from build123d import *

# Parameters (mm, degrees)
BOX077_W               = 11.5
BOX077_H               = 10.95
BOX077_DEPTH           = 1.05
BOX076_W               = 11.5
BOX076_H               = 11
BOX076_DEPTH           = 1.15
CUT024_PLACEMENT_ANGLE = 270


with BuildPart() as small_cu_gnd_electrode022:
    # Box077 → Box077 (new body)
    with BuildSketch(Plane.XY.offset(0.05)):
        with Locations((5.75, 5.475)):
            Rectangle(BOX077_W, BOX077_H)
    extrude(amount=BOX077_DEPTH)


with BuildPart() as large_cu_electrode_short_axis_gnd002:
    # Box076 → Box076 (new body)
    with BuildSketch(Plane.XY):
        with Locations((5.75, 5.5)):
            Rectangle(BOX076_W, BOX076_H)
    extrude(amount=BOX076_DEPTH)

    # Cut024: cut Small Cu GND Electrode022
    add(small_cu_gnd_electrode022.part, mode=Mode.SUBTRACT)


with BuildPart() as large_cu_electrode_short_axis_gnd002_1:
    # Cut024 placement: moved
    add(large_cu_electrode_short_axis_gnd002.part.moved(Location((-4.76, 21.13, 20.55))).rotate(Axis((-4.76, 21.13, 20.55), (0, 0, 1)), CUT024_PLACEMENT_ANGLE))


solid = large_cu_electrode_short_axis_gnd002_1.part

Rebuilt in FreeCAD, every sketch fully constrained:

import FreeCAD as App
import Part
import Sketcher

V = App.Vector

doc = App.newDocument("Part")
body = doc.addObject("PartDesign::Body", "Body")

# Sketch on XY plane
sketch1 = doc.addObject("Sketcher::SketchObject", "Sketch")
body.addObject(sketch1)
sketch1.AttachmentSupport = (doc.XY_Plane, [""])
sketch1.MapMode = "FlatFace"
sketch1.AttachmentOffset = App.Placement(V(0, 0, 0.05), App.Rotation())
sketch1.addGeometry([
    Part.LineSegment(V(0, 10.95, 0), V(0, 0, 0)),
    Part.LineSegment(V(0, 0, 0), V(11.5, 0, 0)),
    Part.LineSegment(V(11.5, 0, 0), V(11.5, 10.95, 0)),
    Part.LineSegment(V(11.5, 10.95, 0), V(0, 10.95, 0)),
], False)
sketch1.addConstraint([
    Sketcher.Constraint("Coincident", 0, 2, 1, 1),
    Sketcher.Constraint("Coincident", 1, 2, 2, 1),
    Sketcher.Constraint("Coincident", 2, 2, 3, 1),
    Sketcher.Constraint("Coincident", 3, 2, 0, 1),
    Sketcher.Constraint("Vertical", 0),
    Sketcher.Constraint("Horizontal", 1),
    Sketcher.Constraint("Vertical", 2),
    Sketcher.Constraint("Horizontal", 3),
    Sketcher.Constraint("Coincident", 0, 2, -1, 1),
    Sketcher.Constraint("DistanceX", 1, 1, 1, 2, 11.5),
    Sketcher.Constraint("DistanceY", 0, 2, 0, 1, 10.95),
])
pad1 = doc.addObject("PartDesign::Pad", "Pad")
body.addObject(pad1)
pad1.Profile = sketch1
pad1.Length = 1.05
body2 = doc.addObject("PartDesign::Body", "Body001")

# Sketch on XY plane
sketch2 = doc.addObject("Sketcher::SketchObject", "Sketch001")
body2.addObject(sketch2)
sketch2.AttachmentSupport = (doc.getObject("XY_Plane001"), [""])
sketch2.MapMode = "FlatFace"
sketch2.addGeometry([
    Part.LineSegment(V(0, 11, 0), V(0, 0, 0)),
    Part.LineSegment(V(0, 0, 0), V(11.5, 0, 0)),
    Part.LineSegment(V(11.5, 0, 0), V(11.5, 11, 0)),
    Part.LineSegment(V(11.5, 11, 0), V(0, 11, 0)),
], False)
sketch2.addConstraint([
    Sketcher.Constraint("Coincident", 0, 2, 1, 1),
    Sketcher.Constraint("Coincident", 1, 2, 2, 1),
    Sketcher.Constraint("Coincident", 2, 2, 3, 1),
    Sketcher.Constraint("Coincident", 3, 2, 0, 1),
    Sketcher.Constraint("Vertical", 0),
    Sketcher.Constraint("Horizontal", 1),
    Sketcher.Constraint("Vertical", 2),
    Sketcher.Constraint("Horizontal", 3),
    Sketcher.Constraint("Coincident", 0, 2, -1, 1),
    Sketcher.Constraint("DistanceY", 0, 2, 0, 1, 11.0),
    Sketcher.Constraint("DistanceX", 1, 1, 1, 2, 11.5),
])
pad2 = doc.addObject("PartDesign::Pad", "Pad001")
body2.addObject(pad2)
pad2.Profile = sketch2
pad2.Length = 1.15
doc.recompute()

boolean = doc.addObject("PartDesign::Boolean", "Boolean")
body2.addObject(boolean)
boolean.Type = "Cut"
boolean.addObjects([body])
body3 = doc.addObject("PartDesign::Body", "Body002")
doc.recompute()

body2.Placement = App.Placement(V(-4.76, 21.13, 20.55), App.Rotation(V(0, 0, 1), 270))
boolean2 = doc.addObject("PartDesign::Boolean", "Boolean001")
body3.addObject(boolean2)
boolean2.Type = "Fuse"
boolean2.addObjects([body2])

doc.recompute()
